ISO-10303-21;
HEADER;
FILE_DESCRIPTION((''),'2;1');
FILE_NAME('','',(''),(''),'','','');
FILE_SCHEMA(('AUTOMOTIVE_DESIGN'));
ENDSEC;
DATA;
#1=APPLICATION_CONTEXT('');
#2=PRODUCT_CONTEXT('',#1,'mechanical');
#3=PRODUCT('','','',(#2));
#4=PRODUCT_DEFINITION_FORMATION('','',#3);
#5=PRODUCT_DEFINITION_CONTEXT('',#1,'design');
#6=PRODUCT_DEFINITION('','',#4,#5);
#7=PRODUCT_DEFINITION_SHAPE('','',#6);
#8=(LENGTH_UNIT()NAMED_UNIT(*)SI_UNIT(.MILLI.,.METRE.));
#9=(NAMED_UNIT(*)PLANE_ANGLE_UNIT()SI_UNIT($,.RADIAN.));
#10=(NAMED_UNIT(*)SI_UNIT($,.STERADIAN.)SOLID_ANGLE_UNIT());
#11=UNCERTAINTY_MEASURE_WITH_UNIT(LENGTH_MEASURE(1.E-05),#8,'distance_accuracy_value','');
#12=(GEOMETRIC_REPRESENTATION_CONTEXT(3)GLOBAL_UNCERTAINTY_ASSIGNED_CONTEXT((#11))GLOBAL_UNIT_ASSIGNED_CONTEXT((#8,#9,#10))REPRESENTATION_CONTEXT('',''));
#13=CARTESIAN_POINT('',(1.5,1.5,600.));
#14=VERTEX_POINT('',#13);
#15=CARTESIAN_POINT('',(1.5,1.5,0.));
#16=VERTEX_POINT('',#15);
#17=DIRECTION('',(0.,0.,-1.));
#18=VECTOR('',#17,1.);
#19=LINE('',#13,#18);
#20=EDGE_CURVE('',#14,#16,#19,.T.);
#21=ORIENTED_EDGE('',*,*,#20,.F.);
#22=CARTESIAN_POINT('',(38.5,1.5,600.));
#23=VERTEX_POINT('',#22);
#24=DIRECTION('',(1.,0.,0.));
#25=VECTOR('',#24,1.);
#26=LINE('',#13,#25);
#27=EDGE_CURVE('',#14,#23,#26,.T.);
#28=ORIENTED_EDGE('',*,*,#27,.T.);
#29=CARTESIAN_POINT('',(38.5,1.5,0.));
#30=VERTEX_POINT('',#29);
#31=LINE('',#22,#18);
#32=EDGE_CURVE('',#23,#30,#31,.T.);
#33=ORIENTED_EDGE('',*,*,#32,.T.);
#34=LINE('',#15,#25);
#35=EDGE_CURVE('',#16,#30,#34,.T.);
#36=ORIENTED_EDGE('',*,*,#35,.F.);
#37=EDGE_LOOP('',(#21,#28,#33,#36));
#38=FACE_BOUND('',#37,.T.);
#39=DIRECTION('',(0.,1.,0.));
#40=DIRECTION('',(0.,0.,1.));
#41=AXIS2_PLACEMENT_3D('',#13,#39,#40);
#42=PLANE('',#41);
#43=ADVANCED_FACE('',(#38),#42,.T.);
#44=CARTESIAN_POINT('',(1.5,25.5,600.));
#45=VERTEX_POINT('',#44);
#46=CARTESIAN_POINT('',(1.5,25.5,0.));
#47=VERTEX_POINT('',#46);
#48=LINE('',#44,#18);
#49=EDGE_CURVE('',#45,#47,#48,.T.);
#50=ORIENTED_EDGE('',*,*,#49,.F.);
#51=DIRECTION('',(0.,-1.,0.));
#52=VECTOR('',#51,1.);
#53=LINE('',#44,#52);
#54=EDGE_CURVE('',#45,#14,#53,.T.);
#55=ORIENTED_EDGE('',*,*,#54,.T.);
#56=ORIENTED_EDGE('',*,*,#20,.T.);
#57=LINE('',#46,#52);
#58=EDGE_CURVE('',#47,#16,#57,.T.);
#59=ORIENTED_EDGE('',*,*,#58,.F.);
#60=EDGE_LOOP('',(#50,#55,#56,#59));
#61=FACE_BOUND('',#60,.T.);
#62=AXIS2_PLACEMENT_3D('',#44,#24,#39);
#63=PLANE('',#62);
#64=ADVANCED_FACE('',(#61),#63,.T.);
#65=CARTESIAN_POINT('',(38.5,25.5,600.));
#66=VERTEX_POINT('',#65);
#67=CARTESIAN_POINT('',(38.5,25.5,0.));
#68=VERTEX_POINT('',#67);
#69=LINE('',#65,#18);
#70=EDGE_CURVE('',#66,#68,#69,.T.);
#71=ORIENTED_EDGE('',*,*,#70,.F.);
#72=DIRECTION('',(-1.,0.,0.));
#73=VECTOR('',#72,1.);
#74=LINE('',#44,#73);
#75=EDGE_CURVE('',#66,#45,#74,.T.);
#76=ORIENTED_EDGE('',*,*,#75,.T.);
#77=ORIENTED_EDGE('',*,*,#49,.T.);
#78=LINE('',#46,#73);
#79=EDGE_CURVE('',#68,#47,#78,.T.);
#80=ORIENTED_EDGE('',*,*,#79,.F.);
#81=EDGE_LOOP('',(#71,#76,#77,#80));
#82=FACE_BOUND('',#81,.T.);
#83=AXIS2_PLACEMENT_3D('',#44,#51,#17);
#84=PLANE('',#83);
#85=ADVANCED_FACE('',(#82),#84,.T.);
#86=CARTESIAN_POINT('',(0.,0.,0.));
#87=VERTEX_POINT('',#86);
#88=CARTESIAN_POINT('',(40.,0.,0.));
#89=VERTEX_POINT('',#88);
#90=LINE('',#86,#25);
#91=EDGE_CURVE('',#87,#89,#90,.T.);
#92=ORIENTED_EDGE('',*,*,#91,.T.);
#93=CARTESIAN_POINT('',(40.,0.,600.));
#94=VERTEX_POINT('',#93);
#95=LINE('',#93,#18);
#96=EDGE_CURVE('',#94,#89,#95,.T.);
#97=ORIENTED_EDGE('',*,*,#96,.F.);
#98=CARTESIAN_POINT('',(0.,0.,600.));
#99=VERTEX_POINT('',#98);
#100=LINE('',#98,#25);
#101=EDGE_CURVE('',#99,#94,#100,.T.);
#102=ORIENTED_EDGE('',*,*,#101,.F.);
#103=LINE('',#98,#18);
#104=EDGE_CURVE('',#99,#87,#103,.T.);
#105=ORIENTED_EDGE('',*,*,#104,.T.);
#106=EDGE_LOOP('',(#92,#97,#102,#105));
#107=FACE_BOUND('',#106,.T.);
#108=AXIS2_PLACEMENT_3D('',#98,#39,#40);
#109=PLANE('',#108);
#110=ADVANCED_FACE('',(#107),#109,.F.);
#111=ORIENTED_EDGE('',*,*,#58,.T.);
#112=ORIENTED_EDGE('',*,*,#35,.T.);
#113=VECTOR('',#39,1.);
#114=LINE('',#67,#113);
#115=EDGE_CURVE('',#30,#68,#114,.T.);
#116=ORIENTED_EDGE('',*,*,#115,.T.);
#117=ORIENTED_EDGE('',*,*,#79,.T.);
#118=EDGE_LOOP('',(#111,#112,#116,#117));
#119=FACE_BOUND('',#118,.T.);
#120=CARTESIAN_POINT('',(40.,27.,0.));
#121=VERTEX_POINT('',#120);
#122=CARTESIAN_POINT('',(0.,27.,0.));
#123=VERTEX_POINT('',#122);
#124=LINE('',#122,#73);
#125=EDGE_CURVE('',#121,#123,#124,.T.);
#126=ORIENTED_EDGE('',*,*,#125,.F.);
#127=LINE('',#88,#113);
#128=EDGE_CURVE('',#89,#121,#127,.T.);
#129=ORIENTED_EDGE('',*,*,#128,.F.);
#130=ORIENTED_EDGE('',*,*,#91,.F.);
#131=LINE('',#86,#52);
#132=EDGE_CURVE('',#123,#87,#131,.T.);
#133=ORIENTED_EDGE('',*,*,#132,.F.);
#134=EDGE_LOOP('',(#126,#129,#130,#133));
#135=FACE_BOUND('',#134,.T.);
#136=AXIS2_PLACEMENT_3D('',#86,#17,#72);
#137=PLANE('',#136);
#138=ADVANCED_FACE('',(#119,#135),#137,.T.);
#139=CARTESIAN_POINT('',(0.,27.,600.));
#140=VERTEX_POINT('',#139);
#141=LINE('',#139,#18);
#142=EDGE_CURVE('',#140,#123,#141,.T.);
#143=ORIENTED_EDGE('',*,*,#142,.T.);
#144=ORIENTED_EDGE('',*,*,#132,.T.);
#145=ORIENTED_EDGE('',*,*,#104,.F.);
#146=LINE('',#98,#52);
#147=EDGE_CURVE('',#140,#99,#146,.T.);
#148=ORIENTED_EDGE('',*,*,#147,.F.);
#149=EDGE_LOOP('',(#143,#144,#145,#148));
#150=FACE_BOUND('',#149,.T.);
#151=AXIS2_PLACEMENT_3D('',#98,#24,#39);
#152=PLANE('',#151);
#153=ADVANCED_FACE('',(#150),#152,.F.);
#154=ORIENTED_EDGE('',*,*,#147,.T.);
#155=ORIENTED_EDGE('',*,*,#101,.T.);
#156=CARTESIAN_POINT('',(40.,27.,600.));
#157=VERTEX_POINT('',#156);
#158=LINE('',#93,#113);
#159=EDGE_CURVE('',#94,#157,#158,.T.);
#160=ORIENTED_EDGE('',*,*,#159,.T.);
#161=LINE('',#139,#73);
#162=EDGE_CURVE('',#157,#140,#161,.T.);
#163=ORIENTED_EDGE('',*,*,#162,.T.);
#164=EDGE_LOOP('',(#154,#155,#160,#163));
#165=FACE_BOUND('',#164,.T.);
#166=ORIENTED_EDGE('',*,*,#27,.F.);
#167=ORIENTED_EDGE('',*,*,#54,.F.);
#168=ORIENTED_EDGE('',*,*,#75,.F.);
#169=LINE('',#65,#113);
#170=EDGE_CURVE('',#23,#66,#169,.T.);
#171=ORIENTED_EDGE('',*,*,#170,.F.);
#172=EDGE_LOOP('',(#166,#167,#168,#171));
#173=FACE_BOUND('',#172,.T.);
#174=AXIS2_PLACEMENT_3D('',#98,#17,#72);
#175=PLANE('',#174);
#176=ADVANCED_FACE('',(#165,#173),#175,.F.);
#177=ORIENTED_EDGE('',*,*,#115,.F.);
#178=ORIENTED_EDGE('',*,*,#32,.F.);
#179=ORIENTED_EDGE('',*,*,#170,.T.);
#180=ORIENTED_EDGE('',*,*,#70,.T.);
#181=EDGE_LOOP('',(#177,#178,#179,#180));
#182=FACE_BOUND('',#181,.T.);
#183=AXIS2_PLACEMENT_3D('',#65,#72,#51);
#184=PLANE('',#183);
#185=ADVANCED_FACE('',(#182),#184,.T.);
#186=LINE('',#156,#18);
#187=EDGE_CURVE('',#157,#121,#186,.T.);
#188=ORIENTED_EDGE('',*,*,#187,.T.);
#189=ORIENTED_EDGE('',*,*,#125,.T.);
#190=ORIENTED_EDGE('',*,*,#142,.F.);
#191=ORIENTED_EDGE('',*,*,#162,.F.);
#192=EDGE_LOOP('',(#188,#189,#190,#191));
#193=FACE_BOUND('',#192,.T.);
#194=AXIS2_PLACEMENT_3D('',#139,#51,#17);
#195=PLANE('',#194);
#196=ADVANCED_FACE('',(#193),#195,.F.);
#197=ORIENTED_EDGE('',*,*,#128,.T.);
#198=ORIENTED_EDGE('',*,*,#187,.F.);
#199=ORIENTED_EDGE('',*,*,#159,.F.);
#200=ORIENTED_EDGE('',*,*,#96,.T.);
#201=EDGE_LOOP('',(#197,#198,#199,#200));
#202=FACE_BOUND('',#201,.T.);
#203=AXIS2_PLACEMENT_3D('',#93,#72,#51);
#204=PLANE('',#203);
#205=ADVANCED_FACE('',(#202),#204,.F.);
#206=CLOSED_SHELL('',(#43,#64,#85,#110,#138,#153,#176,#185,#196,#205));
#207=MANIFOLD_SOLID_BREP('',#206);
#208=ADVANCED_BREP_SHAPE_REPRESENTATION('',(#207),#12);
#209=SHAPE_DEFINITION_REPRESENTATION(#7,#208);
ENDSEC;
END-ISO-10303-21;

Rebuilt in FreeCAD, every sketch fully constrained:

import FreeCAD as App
import Part
import Sketcher
from FreeCAD import Vector
Q = App.Units.Quantity


def add_polygon(sketch, points):
    """Adds a closed chain of lines whose ends are joined by coincident constraints."""
    first, n = sketch.GeometryCount, len(points)
    for a, b in zip(points, points[1:] + points[:1]):
        sketch.addGeometry(Part.LineSegment(App.Vector(*a, 0), App.Vector(*b, 0)), False)
    for i in range(n):
        sketch.addConstraint(Sketcher.Constraint("Coincident", first + i, 2, first + (i + 1) % n, 1))

doc = App.newDocument("Part")
body = doc.addObject("PartDesign::Body", "Body")

# Sketch on XY plane
sketch1 = body.newObject("Sketcher::SketchObject", "Sketch")
sketch1.AttachmentSupport = (doc.getObject("XY_Plane"), [""])
sketch1.MapMode = "FlatFace"
add_polygon(sketch1, [(0, 27), (0, 0), (40, 0), (40, 27)])  # lines 0-3
add_polygon(sketch1, [(38.5, 1.5), (1.5, 1.5), (1.5, 25.5), (38.5, 25.5)])  # lines 4-7
sketch1.addConstraint([
    Sketcher.Constraint("Vertical", 0),
    Sketcher.Constraint("Horizontal", 1),
    Sketcher.Constraint("Vertical", 2),
    Sketcher.Constraint("Horizontal", 3),
    Sketcher.Constraint("Horizontal", 4),
    Sketcher.Constraint("Vertical", 5),
    Sketcher.Constraint("Horizontal", 6),
    Sketcher.Constraint("Vertical", 7),
    Sketcher.Constraint("Coincident", 0, 2, -1, 1),
    Sketcher.Constraint("DistanceX", 1, 1, 1, 2, Q("40 mm")),
    Sketcher.Constraint("DistanceX", 4, 2, 4, 1, Q("37 mm")),
    Sketcher.Constraint("DistanceY", 0, 2, 0, 1, Q("27 mm")),
    Sketcher.Constraint("DistanceY", 5, 1, 5, 2, Q("24 mm")),
    Sketcher.Constraint("DistanceX", -1, 1, 4, 2, Q("1.5 mm")),
    Sketcher.Constraint("DistanceY", -1, 1, 4, 2, Q("1.5 mm")),
])
pad1 = body.newObject("PartDesign::Pad", "Pad")
pad1.Profile = sketch1
pad1.Length = 600

doc.recompute()
